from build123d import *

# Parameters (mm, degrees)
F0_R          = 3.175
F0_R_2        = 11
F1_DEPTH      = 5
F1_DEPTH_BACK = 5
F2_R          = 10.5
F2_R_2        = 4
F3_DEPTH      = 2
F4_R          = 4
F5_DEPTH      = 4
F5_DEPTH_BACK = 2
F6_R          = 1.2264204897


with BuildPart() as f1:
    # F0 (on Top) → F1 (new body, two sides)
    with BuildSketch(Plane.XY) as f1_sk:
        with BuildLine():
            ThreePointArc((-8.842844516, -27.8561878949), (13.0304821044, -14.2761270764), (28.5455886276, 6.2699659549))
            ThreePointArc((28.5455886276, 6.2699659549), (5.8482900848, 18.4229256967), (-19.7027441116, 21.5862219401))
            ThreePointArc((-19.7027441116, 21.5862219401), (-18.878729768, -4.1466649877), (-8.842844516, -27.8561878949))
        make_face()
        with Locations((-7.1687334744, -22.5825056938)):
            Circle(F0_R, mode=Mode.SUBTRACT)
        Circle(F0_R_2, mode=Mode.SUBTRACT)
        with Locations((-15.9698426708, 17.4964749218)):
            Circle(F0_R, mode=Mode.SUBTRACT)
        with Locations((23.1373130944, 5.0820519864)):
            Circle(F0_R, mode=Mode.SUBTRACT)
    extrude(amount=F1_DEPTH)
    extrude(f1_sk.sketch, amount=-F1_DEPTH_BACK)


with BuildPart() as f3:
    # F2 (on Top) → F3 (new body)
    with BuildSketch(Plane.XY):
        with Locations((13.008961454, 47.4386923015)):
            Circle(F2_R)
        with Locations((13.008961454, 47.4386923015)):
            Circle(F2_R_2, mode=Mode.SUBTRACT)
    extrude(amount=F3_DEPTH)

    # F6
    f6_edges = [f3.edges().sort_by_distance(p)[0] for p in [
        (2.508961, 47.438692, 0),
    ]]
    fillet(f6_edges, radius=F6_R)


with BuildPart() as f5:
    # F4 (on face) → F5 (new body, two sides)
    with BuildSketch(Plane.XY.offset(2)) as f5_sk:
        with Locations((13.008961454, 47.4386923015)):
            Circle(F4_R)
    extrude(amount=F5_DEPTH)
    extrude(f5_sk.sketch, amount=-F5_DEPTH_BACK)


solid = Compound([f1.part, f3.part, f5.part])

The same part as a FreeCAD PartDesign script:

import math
import FreeCAD as App
import Part
import Sketcher
from FreeCAD import Vector


def edges_at(feature, points):
    """Names of the edges that pass closest to the given points."""
    edges = feature.Shape.Edges
    near = lambda p: min(range(len(edges)), key=lambda i: edges[i].distToShape(Part.Vertex(*p))[0])
    return sorted({f"Edge{near(p) + 1}" for p in points})

doc = App.newDocument("Part")
params = doc.addObject("Spreadsheet::Sheet", "Params")
for row, (alias, value) in enumerate([
    ("sketch1_diameter", "22 mm"),
    ("sketch1_diameter2", "6.35 mm"),
    ("pad1_length", "5 mm"),
    ("pad1_length2", "5 mm"),
    ("sketch2_diameter", "21 mm"),
    ("sketch2_diameter2", "8 mm"),
    ("pad2_length", "2 mm"),
    ("fillet_radius", "1.22642 mm"),
    ("sketch3_diameter", "8 mm"),
    ("pad3_length", "4 mm"),
    ("pad3_length2", "2 mm"),
], start=1):
    params.set(f"A{row}", alias)
    params.set(f"B{row}", "=" + value)
    params.setAlias(f"B{row}", alias)

body = doc.addObject("PartDesign::Body", "Body")

# Sketch on XY plane
sketch1 = body.newObject("Sketcher::SketchObject", "Sketch")
sketch1.AttachmentSupport = (doc.getObject("XY_Plane"), [""])
sketch1.MapMode = "FlatFace"
sketch1.addGeometry(Part.ArcOfCircle(Part.Circle(Vector(-34.3, 37.6, 0), Vector(0, 0, 1), 70.3), math.radians(-69), math.radians(-27)), False)
sketch1.addGeometry(Part.ArcOfCircle(Part.Circle(Vector(-15.4, -48.6, 0), Vector(0, 0, 1), 70.3), math.radians(51), math.radians(93)), False)
sketch1.addGeometry(Part.ArcOfCircle(Part.Circle(Vector(49.8, 10.9, 0), Vector(0, 0, 1), 70.3), math.radians(171), math.radians(213)), False)
sketch1.addGeometry(Part.Circle(Vector(-7.2, -22.6, 0), Vector(0, 0, 1), 3.2), False)
sketch1.addGeometry(Part.Circle(Vector(0, 0, 0), Vector(0, 0, 1), 11), False)
sketch1.addGeometry(Part.Circle(Vector(-16, 17.5, 0), Vector(0, 0, 1), 3.2), False)
sketch1.addGeometry(Part.Circle(Vector(23.1, 5.1, 0), Vector(0, 0, 1), 3.2), False)
sketch1.addConstraint(Sketcher.Constraint("Coincident", 0, 2, 1, 1))
sketch1.addConstraint(Sketcher.Constraint("Coincident", 1, 2, 2, 1))
sketch1.addConstraint(Sketcher.Constraint("Coincident", 2, 2, 0, 1))
sketch1.addConstraint(Sketcher.Constraint("Coincident", 4, 3, -1, 1))
sketch1.addConstraint(Sketcher.Constraint("Equal", 0, 2))
sketch1.addConstraint(Sketcher.Constraint("Equal", 3, 5))
sketch1.addConstraint(Sketcher.Constraint("Equal", 5, 6))
sketch1.addConstraint(Sketcher.Constraint("Diameter", 4, 22.0))
sketch1.addConstraint(Sketcher.Constraint("Diameter", 3, 6.35))
sketch1.addConstraint(Sketcher.Constraint("Radius", 0, 70.2818))
sketch1.addConstraint(Sketcher.Constraint("Radius", 1, 70.279851))
sketch1.addConstraint(Sketcher.Constraint("DistanceX", 5, 3, 2, 2, 7.126998))
sketch1.addConstraint(Sketcher.Constraint("DistanceY", 1, 3, 2, 3, 59.4939))
sketch1.addConstraint(Sketcher.Constraint("DistanceX", 1, 2, 5, 3, 3.732901))
sketch1.addConstraint(Sketcher.Constraint("DistanceX", 0, 3, -1, 1, 34.349969))
sketch1.addConstraint(Sketcher.Constraint("DistanceY", -1, 1, 6, 3, 5.082052))
sketch1.addConstraint(Sketcher.Constraint("DistanceX", -1, 1, 0, 2, 28.545589))
sketch1.addConstraint(Sketcher.Constraint("DistanceY", -1, 1, 1, 2, 21.586222))
sketch1.addConstraint(Sketcher.Constraint("DistanceY", 1, 3, 0, 3, 86.196419))
sketch1.addConstraint(Sketcher.Constraint("DistanceX", 1, 3, 3, 3, 8.247341))
sketch1.addConstraint(Sketcher.Constraint("DistanceY", 1, 3, 3, 3, 25.98027))
sketch1.addConstraint(Sketcher.Constraint("DistanceY", 5, 3, 0, 3, 20.137169))
sketch1.addConstraint(Sketcher.Constraint("DistanceX", -1, 1, 6, 3, 23.137313))
sketch1.setExpression("Constraints[7]", "Params.sketch1_diameter")
sketch1.setExpression("Constraints[8]", "Params.sketch1_diameter2")
pad1 = body.newObject("PartDesign::Pad", "Pad")
pad1.Profile = sketch1
pad1.Type = "TwoLengths"
pad1.setExpression("Length", "Params.pad1_length")
pad1.setExpression("Length2", "Params.pad1_length2")
body2 = doc.addObject("PartDesign::Body", "Body001")

# Sketch on XY plane
sketch2 = body2.newObject("Sketcher::SketchObject", "Sketch001")
sketch2.AttachmentSupport = (doc.getObject("XY_Plane001"), [""])
sketch2.MapMode = "FlatFace"
sketch2.addGeometry(Part.Circle(Vector(13, 47.4, 0), Vector(0, 0, 1), 10.5), False)
sketch2.addGeometry(Part.Circle(Vector(13, 47.4, 0), Vector(0, 0, 1), 4), False)
sketch2.addConstraint(Sketcher.Constraint("Coincident", 1, 3, 0, 3))
sketch2.addConstraint(Sketcher.Constraint("Diameter", 0, 21.0))
sketch2.addConstraint(Sketcher.Constraint("Diameter", 1, 8.0))
sketch2.addConstraint(Sketcher.Constraint("DistanceX", -1, 1, 0, 3, 13.008961))
sketch2.addConstraint(Sketcher.Constraint("DistanceY", -1, 1, 0, 3, 47.438692))
sketch2.setExpression("Constraints[1]", "Params.sketch2_diameter")
sketch2.setExpression("Constraints[2]", "Params.sketch2_diameter2")
pad2 = body2.newObject("PartDesign::Pad", "Pad001")
pad2.Profile = sketch2
pad2.setExpression("Length", "Params.pad2_length")
doc.recompute()

fillet = body2.newObject("PartDesign::Fillet", "Fillet")
fillet.Base = (pad2, edges_at(pad2, [(2.509, 47.439, 0)]))
fillet.setExpression("Radius", "Params.fillet_radius")
body3 = doc.addObject("PartDesign::Body", "Body002")

# Sketch on XY plane
sketch3 = body3.newObject("Sketcher::SketchObject", "Sketch002")
sketch3.AttachmentSupport = (doc.getObject("XY_Plane002"), [""])
sketch3.MapMode = "FlatFace"
sketch3.AttachmentOffset = App.Placement(Vector(0, 0, 2), App.Rotation())
sketch3.addGeometry(Part.Circle(Vector(13, 47.4, 0), Vector(0, 0, 1), 4), False)
sketch3.addConstraint(Sketcher.Constraint("Diameter", 0, 8.0))
sketch3.addConstraint(Sketcher.Constraint("DistanceX", -1, 1, 0, 3, 13.008961))
sketch3.addConstraint(Sketcher.Constraint("DistanceY", -1, 1, 0, 3, 47.438692))
sketch3.setExpression("Constraints[0]", "Params.sketch3_diameter")
pad3 = body3.newObject("PartDesign::Pad", "Pad002")
pad3.Profile = sketch3
pad3.Type = "TwoLengths"
pad3.setExpression("Length", "Params.pad3_length")
pad3.setExpression("Length2", "Params.pad3_length2")

doc.recompute()
